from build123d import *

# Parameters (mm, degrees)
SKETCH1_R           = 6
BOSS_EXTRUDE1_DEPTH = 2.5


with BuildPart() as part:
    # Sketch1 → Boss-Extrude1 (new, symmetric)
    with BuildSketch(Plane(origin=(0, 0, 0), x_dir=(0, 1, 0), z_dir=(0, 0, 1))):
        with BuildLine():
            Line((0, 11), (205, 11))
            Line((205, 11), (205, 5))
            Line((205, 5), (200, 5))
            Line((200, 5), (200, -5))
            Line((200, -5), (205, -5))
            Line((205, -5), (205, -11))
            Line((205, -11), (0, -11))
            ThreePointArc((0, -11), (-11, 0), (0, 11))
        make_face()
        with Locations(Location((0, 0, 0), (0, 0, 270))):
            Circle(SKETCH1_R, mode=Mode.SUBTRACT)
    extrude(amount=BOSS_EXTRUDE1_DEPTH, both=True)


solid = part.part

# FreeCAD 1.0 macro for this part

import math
import FreeCAD as App
import Part
import Sketcher
from FreeCAD import Vector
Q = App.Units.Quantity

doc = App.newDocument("Part")
body = doc.addObject("PartDesign::Body", "Body")

sketch1 = doc.addObject("Sketcher::SketchObject", "Sketch")
body.addObject(sketch1)
sketch1.AttachmentSupport = (doc.XY_Plane, [""])
sketch1.MapMode = "FlatFace"
sketch1.addGeometry([
    Part.LineSegment(Vector(-11, 205, 0), Vector(-11, 0, 0)),
    Part.ArcOfCircle(Part.Circle(Vector(0, 0, 0), Vector(0, 0, 1), 11), math.radians(180), math.radians(360)),
    Part.LineSegment(Vector(11, 0, 0), Vector(11, 205, 0)),
    Part.LineSegment(Vector(11, 205, 0), Vector(5, 205, 0)),
    Part.LineSegment(Vector(5, 205, 0), Vector(5, 200, 0)),
    Part.LineSegment(Vector(5, 200, 0), Vector(-5, 200, 0)),
    Part.LineSegment(Vector(-5, 200, 0), Vector(-5, 205, 0)),
    Part.LineSegment(Vector(-5, 205, 0), Vector(-11, 205, 0)),
    Part.Circle(Vector(0, 0, 0), Vector(0, 0, 1), 6),
], False)
sketch1.addConstraint([
    Sketcher.Constraint("Tangent", 0, 2, 1, 1),
    Sketcher.Constraint("Tangent", 1, 2, 2, 1),
    Sketcher.Constraint("Coincident", 2, 2, 3, 1),
    Sketcher.Constraint("Coincident", 3, 2, 4, 1),
    Sketcher.Constraint("Coincident", 4, 2, 5, 1),
    Sketcher.Constraint("Coincident", 5, 2, 6, 1),
    Sketcher.Constraint("Coincident", 6, 2, 7, 1),
    Sketcher.Constraint("Coincident", 7, 2, 0, 1),
    Sketcher.Constraint("Vertical", 0),
    Sketcher.Constraint("Vertical", 2),
    Sketcher.Constraint("Horizontal", 3),
    Sketcher.Constraint("Vertical", 4),
    Sketcher.Constraint("Horizontal", 5),
    Sketcher.Constraint("Vertical", 6),
    Sketcher.Constraint("Horizontal", 7),
    Sketcher.Constraint("Coincident", 1, 3, -1, 1),
    Sketcher.Constraint("Coincident", 8, 3, -1, 1),
    Sketcher.Constraint("Symmetric", 3, 2, 6, 2, -2),
    Sketcher.Constraint("Diameter", 8, Q("12 mm")),
    Sketcher.Constraint("Radius", 1, Q("11 mm")),
    Sketcher.Constraint("DistanceX", 3, 2, 3, 1, Q("6 mm")),
    Sketcher.Constraint("DistanceY", 0, 2, 0, 1, Q("205 mm")),
    Sketcher.Constraint("DistanceY", 4, 2, 4, 1, Q("5 mm")),
])
pad1 = doc.addObject("PartDesign::Pad", "Pad")
body.addObject(pad1)
pad1.Profile = sketch1
pad1.Length = 5
pad1.Midplane = True

doc.recompute()
